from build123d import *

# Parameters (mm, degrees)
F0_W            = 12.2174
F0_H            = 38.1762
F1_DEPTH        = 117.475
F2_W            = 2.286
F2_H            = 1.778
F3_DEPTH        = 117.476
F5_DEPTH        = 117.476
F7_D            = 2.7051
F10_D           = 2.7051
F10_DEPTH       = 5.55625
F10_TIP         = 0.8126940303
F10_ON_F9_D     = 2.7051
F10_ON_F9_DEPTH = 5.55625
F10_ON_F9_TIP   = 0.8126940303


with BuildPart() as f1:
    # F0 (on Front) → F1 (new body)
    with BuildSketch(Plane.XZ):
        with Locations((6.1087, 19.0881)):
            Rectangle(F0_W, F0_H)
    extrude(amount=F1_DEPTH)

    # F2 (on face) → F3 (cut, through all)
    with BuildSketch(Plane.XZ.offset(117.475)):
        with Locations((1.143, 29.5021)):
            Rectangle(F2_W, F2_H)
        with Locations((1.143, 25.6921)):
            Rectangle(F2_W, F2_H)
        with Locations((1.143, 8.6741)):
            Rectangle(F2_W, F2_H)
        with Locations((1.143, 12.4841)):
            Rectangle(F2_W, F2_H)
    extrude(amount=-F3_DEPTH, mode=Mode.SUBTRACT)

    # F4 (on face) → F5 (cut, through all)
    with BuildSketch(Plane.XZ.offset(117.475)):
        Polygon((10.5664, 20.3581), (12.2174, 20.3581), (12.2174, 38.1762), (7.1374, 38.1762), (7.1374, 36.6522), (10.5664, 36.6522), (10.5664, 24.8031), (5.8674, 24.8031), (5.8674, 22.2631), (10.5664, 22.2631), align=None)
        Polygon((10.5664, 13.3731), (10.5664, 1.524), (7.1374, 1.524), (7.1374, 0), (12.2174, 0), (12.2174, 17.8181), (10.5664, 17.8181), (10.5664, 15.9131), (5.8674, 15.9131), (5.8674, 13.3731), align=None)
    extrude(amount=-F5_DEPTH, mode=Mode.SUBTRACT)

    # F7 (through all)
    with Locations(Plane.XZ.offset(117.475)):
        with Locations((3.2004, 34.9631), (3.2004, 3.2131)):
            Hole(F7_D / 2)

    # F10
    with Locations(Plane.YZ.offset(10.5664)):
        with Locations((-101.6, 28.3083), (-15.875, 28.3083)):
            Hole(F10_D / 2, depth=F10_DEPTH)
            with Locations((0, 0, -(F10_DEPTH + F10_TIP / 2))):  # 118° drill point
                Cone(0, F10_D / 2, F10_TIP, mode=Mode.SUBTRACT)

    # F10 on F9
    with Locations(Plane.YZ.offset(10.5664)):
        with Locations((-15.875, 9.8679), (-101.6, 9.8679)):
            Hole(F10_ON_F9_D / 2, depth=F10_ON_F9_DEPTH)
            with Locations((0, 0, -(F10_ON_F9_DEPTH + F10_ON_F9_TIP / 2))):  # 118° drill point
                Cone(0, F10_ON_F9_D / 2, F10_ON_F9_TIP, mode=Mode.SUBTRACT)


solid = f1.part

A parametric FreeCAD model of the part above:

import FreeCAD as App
import Part
import Sketcher
from FreeCAD import Vector
Q = App.Units.Quantity

doc = App.newDocument("Part")
body = doc.addObject("PartDesign::Body", "Body")

# Sketch on XZ plane
sketch1 = doc.addObject("Sketcher::SketchObject", "Sketch")
body.addObject(sketch1)
sketch1.AttachmentSupport = (doc.XZ_Plane, [""])
sketch1.MapMode = "FlatFace"
sketch1.addGeometry([
    Part.LineSegment(Vector(0, 38, 0), Vector(0, 0, 0)),
    Part.LineSegment(Vector(0, 0, 0), Vector(12, 0, 0)),
    Part.LineSegment(Vector(12, 0, 0), Vector(12, 38, 0)),
    Part.LineSegment(Vector(12, 38, 0), Vector(0, 38, 0)),
], False)
sketch1.addConstraint([
    Sketcher.Constraint("Coincident", 0, 2, 1, 1),
    Sketcher.Constraint("Coincident", 1, 2, 2, 1),
    Sketcher.Constraint("Coincident", 2, 2, 3, 1),
    Sketcher.Constraint("Coincident", 3, 2, 0, 1),
    Sketcher.Constraint("Vertical", 0),
    Sketcher.Constraint("Horizontal", 1),
    Sketcher.Constraint("Vertical", 2),
    Sketcher.Constraint("Horizontal", 3),
    Sketcher.Constraint("Coincident", 0, 2, -1, 1),
    Sketcher.Constraint("DistanceX", 1, 1, 1, 2, Q("0.481 in")),
    Sketcher.Constraint("DistanceY", 0, 2, 0, 1, Q("1.503 in")),
])
pad1 = doc.addObject("PartDesign::Pad", "Pad")
body.addObject(pad1)
pad1.Profile = sketch1
pad1.Length = Q("4.625 in")

# Sketch on XZ plane
sketch2 = doc.addObject("Sketcher::SketchObject", "Sketch001")
body.addObject(sketch2)
sketch2.AttachmentSupport = (doc.XZ_Plane, [""])
sketch2.MapMode = "FlatFace"
sketch2.AttachmentOffset = App.Placement(Vector(0, 0, 4.625 * 25.4), App.Rotation())
sketch2.addGeometry([
    Part.LineSegment(Vector(0, 30.4, 0), Vector(0, 28.6, 0)),  # 0
    Part.LineSegment(Vector(0, 28.6, 0), Vector(2.3, 28.6, 0)),  # 1
    Part.LineSegment(Vector(2.3, 28.6, 0), Vector(2.3, 30.4, 0)),  # 2
    Part.LineSegment(Vector(2.3, 30.4, 0), Vector(0, 30.4, 0)),  # 3
    Part.LineSegment(Vector(0, 26.6, 0), Vector(0, 24.8, 0)),  # 4
    Part.LineSegment(Vector(0, 24.8, 0), Vector(2.3, 24.8, 0)),  # 5
    Part.LineSegment(Vector(2.3, 24.8, 0), Vector(2.3, 26.6, 0)),  # 6
    Part.LineSegment(Vector(2.3, 26.6, 0), Vector(0, 26.6, 0)),  # 7
    Part.LineSegment(Vector(0, 9.6, 0), Vector(0, 7.8, 0)),  # 8
    Part.LineSegment(Vector(0, 7.8, 0), Vector(2.3, 7.8, 0)),  # 9
    Part.LineSegment(Vector(2.3, 7.8, 0), Vector(2.3, 9.6, 0)),  # 10
    Part.LineSegment(Vector(2.3, 9.6, 0), Vector(0, 9.6, 0)),  # 11
    Part.LineSegment(Vector(0, 13.4, 0), Vector(0, 11.6, 0)),  # 12
    Part.LineSegment(Vector(0, 11.6, 0), Vector(2.3, 11.6, 0)),  # 13
    Part.LineSegment(Vector(2.3, 11.6, 0), Vector(2.3, 13.4, 0)),  # 14
    Part.LineSegment(Vector(2.3, 13.4, 0), Vector(0, 13.4, 0)),  # 15
], False)
sketch2.addConstraint([
    Sketcher.Constraint("Coincident", 0, 2, 1, 1),
    Sketcher.Constraint("Coincident", 1, 2, 2, 1),
    Sketcher.Constraint("Coincident", 2, 2, 3, 1),
    Sketcher.Constraint("Coincident", 3, 2, 0, 1),
    Sketcher.Constraint("Coincident", 4, 2, 5, 1),
    Sketcher.Constraint("Coincident", 5, 2, 6, 1),
    Sketcher.Constraint("Coincident", 6, 2, 7, 1),
    Sketcher.Constraint("Coincident", 7, 2, 4, 1),
    Sketcher.Constraint("Coincident", 8, 2, 9, 1),
    Sketcher.Constraint("Coincident", 9, 2, 10, 1),
    Sketcher.Constraint("Coincident", 10, 2, 11, 1),
    Sketcher.Constraint("Coincident", 11, 2, 8, 1),
    Sketcher.Constraint("Coincident", 12, 2, 13, 1),
    Sketcher.Constraint("Coincident", 13, 2, 14, 1),
    Sketcher.Constraint("Coincident", 14, 2, 15, 1),
    Sketcher.Constraint("Coincident", 15, 2, 12, 1),
    Sketcher.Constraint("Vertical", 0),
    Sketcher.Constraint("Horizontal", 1),
    Sketcher.Constraint("Vertical", 2),
    Sketcher.Constraint("Horizontal", 3),
    Sketcher.Constraint("Vertical", 4),
    Sketcher.Constraint("Horizontal", 5),
    Sketcher.Constraint("Vertical", 6),
    Sketcher.Constraint("Horizontal", 7),
    Sketcher.Constraint("Vertical", 8),
    Sketcher.Constraint("Horizontal", 9),
    Sketcher.Constraint("Vertical", 10),
    Sketcher.Constraint("Horizontal", 11),
    Sketcher.Constraint("Vertical", 12),
    Sketcher.Constraint("Horizontal", 13),
    Sketcher.Constraint("Vertical", 14),
    Sketcher.Constraint("Horizontal", 15),
    Sketcher.Constraint("PointOnObject", 0, 2, -2),
    Sketcher.Constraint("PointOnObject", 4, 2, -2),
    Sketcher.Constraint("PointOnObject", 8, 2, -2),
    Sketcher.Constraint("PointOnObject", 12, 2, -2),
    Sketcher.Constraint("Vertical", 2, 2, 5, 2),
    Sketcher.Constraint("Vertical", 6, 2, 9, 2),
    Sketcher.Constraint("Vertical", 10, 2, 13, 2),
    Sketcher.Constraint("Equal", 2, 4),
    Sketcher.Constraint("Equal", 6, 8),
    Sketcher.Constraint("Equal", 10, 12),
    Sketcher.Constraint("DistanceX", 1, 1, 1, 2, Q("0.09 in")),
    Sketcher.Constraint("DistanceY", 0, 2, 0, 1, Q("0.07 in")),
    Sketcher.Constraint("DistanceY", 10, 2, 5, 2, Q("0.6 in")),
    Sketcher.Constraint("DistanceY", 4, 2, 0, 2, Q("0.15 in")),
    Sketcher.Constraint("DistanceY", 11, 2, 12, 2, Q("0.08 in")),
    Sketcher.Constraint("DistanceY", -1, 1, 0, 2, Q("1.1265 in")),
])
pocket1 = doc.addObject("PartDesign::Pocket", "Pocket")
body.addObject(pocket1)
pocket1.Profile = sketch2
pocket1.Type = "ThroughAll"

# Sketch on XZ plane
sketch3 = doc.addObject("Sketcher::SketchObject", "Sketch002")
body.addObject(sketch3)
sketch3.AttachmentSupport = (doc.XZ_Plane, [""])
sketch3.MapMode = "FlatFace"
sketch3.AttachmentOffset = App.Placement(Vector(0, 0, 4.625 * 25.4), App.Rotation())
sketch3.addGeometry([
    Part.LineSegment(Vector(10.6, 20.4, 0), Vector(12.2, 20.4, 0)),  # 0
    Part.LineSegment(Vector(12.2, 20.4, 0), Vector(12.2, 38.2, 0)),  # 1
    Part.LineSegment(Vector(12.2, 38.2, 0), Vector(7.1, 38.2, 0)),  # 2
    Part.LineSegment(Vector(7.1, 38.2, 0), Vector(7.1, 36.7, 0)),  # 3
    Part.LineSegment(Vector(7.1, 36.7, 0), Vector(10.6, 36.7, 0)),  # 4
    Part.LineSegment(Vector(10.6, 36.7, 0), Vector(10.6, 24.8, 0)),  # 5
    Part.LineSegment(Vector(10.6, 24.8, 0), Vector(5.9, 24.8, 0)),  # 6
    Part.LineSegment(Vector(5.9, 24.8, 0), Vector(5.9, 22.3, 0)),  # 7
    Part.LineSegment(Vector(5.9, 22.3, 0), Vector(10.6, 22.3, 0)),  # 8
    Part.LineSegment(Vector(10.6, 22.3, 0), Vector(10.6, 20.4, 0)),  # 9
    Part.LineSegment(Vector(10.6, 13.4, 0), Vector(10.6, 1.5, 0)),  # 10
    Part.LineSegment(Vector(10.6, 1.5, 0), Vector(7.1, 1.5, 0)),  # 11
    Part.LineSegment(Vector(7.1, 1.5, 0), Vector(7.1, 0, 0)),  # 12
    Part.LineSegment(Vector(7.1, 0, 0), Vector(12.2, 0, 0)),  # 13
    Part.LineSegment(Vector(12.2, 0, 0), Vector(12.2, 17.8, 0)),  # 14
    Part.LineSegment(Vector(12.2, 17.8, 0), Vector(10.6, 17.8, 0)),  # 15
    Part.LineSegment(Vector(10.6, 17.8, 0), Vector(10.6, 15.9, 0)),  # 16
    Part.LineSegment(Vector(10.6, 15.9, 0), Vector(5.9, 15.9, 0)),  # 17
    Part.LineSegment(Vector(5.9, 15.9, 0), Vector(5.9, 13.4, 0)),  # 18
    Part.LineSegment(Vector(5.9, 13.4, 0), Vector(10.6, 13.4, 0)),  # 19
], False)
sketch3.addConstraint([
    Sketcher.Constraint("Coincident", 0, 2, 1, 1),
    Sketcher.Constraint("Coincident", 1, 2, 2, 1),
    Sketcher.Constraint("Coincident", 2, 2, 3, 1),
    Sketcher.Constraint("Coincident", 3, 2, 4, 1),
    Sketcher.Constraint("Coincident", 4, 2, 5, 1),
    Sketcher.Constraint("Coincident", 5, 2, 6, 1),
    Sketcher.Constraint("Coincident", 6, 2, 7, 1),
    Sketcher.Constraint("Coincident", 7, 2, 8, 1),
    Sketcher.Constraint("Coincident", 8, 2, 9, 1),
    Sketcher.Constraint("Coincident", 9, 2, 0, 1),
    Sketcher.Constraint("Coincident", 10, 2, 11, 1),
    Sketcher.Constraint("Coincident", 11, 2, 12, 1),
    Sketcher.Constraint("Coincident", 12, 2, 13, 1),
    Sketcher.Constraint("Coincident", 13, 2, 14, 1),
    Sketcher.Constraint("Coincident", 14, 2, 15, 1),
    Sketcher.Constraint("Coincident", 15, 2, 16, 1),
    Sketcher.Constraint("Coincident", 16, 2, 17, 1),
    Sketcher.Constraint("Coincident", 17, 2, 18, 1),
    Sketcher.Constraint("Coincident", 18, 2, 19, 1),
    Sketcher.Constraint("Coincident", 19, 2, 10, 1),
    Sketcher.Constraint("Horizontal", 0),
    Sketcher.Constraint("Vertical", 1),
    Sketcher.Constraint("Horizontal", 2),
    Sketcher.Constraint("Vertical", 3),
    Sketcher.Constraint("Horizontal", 4),
    Sketcher.Constraint("Vertical", 5),
    Sketcher.Constraint("Horizontal", 6),
    Sketcher.Constraint("Vertical", 7),
    Sketcher.Constraint("Horizontal", 8),
    Sketcher.Constraint("Vertical", 9),
    Sketcher.Constraint("Vertical", 10),
    Sketcher.Constraint("Horizontal", 11),
    Sketcher.Constraint("Vertical", 12),
    Sketcher.Constraint("Horizontal", 13),
    Sketcher.Constraint("Vertical", 14),
    Sketcher.Constraint("Horizontal", 15),
    Sketcher.Constraint("Vertical", 16),
    Sketcher.Constraint("Horizontal", 17),
    Sketcher.Constraint("Vertical", 18),
    Sketcher.Constraint("Horizontal", 19),
    Sketcher.Constraint("PointOnObject", 12, 2, -1),
    Sketcher.Constraint("Vertical", 5, 2, 8, 2),
    Sketcher.Constraint("Vertical", 9, 2, 10, 2),
    Sketcher.Constraint("Vertical", 3, 2, 11, 2),
    Sketcher.Constraint("Vertical", 1, 2, 13, 2),
    Sketcher.Constraint("Vertical", 10, 2, 15, 2),
    Sketcher.Constraint("Vertical", 7, 2, 17, 2),
    Sketcher.Constraint("Equal", 5, 10),
    Sketcher.Constraint("Equal", 3, 12),
    Sketcher.Constraint("Equal", 1, 14),
    Sketcher.Constraint("Equal", 9, 16),
    Sketcher.Constraint("DistanceX", 2, 2, 2, 1, Q("0.2 in")),
    Sketcher.Constraint("DistanceY", 7, 2, 7, 1, Q("0.1 in")),
    Sketcher.Constraint("DistanceY", 3, 2, 3, 1, Q("0.06 in")),
    Sketcher.Constraint("DistanceY", 14, 2, 0, 2, Q("0.1 in")),
    Sketcher.Constraint("DistanceX", 0, 1, 0, 2, Q("0.065 in")),
    Sketcher.Constraint("DistanceX", 6, 2, 6, 1, Q("0.185 in")),
    Sketcher.Constraint("DistanceY", 9, 2, 9, 1, Q("0.075 in")),
    Sketcher.Constraint("DistanceY", 1, 1, 1, 2, Q("0.7015 in")),
    Sketcher.Constraint("DistanceX", -1, 1, 0, 2, Q("0.481 in")),
])
pocket2 = doc.addObject("PartDesign::Pocket", "Pocket001")
body.addObject(pocket2)
pocket2.Profile = sketch3
pocket2.Type = "ThroughAll"

# Sketch on XZ plane
sketch4 = doc.addObject("Sketcher::SketchObject", "Sketch003")
body.addObject(sketch4)
sketch4.AttachmentSupport = (doc.XZ_Plane, [""])
sketch4.MapMode = "FlatFace"
sketch4.AttachmentOffset = App.Placement(Vector(0, 0, 4.625 * 25.4), App.Rotation())
sketch4.addGeometry([
    Part.Circle(Vector(3.2, 35, 0), Vector(0, 0, 1), 1.4),
    Part.Circle(Vector(3.2, 3.2, 0), Vector(0, 0, 1), 1.4),
], False)
sketch4.addConstraint([
    Sketcher.Constraint("Equal", 0, 1),
    Sketcher.Constraint("Vertical", 0, 3, 1, 3),
    Sketcher.Constraint("Diameter", 0, Q("0.1065 in")),
    Sketcher.Constraint("DistanceY", 1, 3, 0, 3, Q("1.25 in")),
    Sketcher.Constraint("DistanceX", -1, 1, 0, 3, Q("0.126 in")),
    Sketcher.Constraint("DistanceY", -1, 1, 0, 3, Q("1.3765 in")),
])
doc.recompute()
hole = doc.addObject("PartDesign::Hole", "Hole")
body.addObject(hole)
hole.Profile = sketch4
hole.ThreadType = "None"
hole.Diameter = Q("0.1065 in")
hole.DepthType = "ThroughAll"

# Sketch on YZ plane
sketch5 = doc.addObject("Sketcher::SketchObject", "Sketch004")
body.addObject(sketch5)
sketch5.AttachmentSupport = (doc.YZ_Plane, [""])
sketch5.MapMode = "FlatFace"
sketch5.AttachmentOffset = App.Placement(Vector(0, 0, 0.416 * 25.4), App.Rotation())
sketch5.addGeometry([
    Part.Circle(Vector(-101.6, 28.3, 0), Vector(0, 0, 1), 1.4),
    Part.Circle(Vector(-15.9, 28.3, 0), Vector(0, 0, 1), 1.4),
], False)
sketch5.addConstraint([
    Sketcher.Constraint("Equal", 0, 1),
    Sketcher.Constraint("Horizontal", 0, 3, 1, 3),
    Sketcher.Constraint("DistanceX", 0, 3, -1, 1, Q("4 in")),
    Sketcher.Constraint("Diameter", 0, Q("0.1065 in")),
    Sketcher.Constraint("DistanceX", 1, 3, -1, 1, Q("0.625 in")),
    Sketcher.Constraint("DistanceY", -1, 1, 0, 3, Q("1.1145 in")),
])
doc.recompute()
hole2 = doc.addObject("PartDesign::Hole", "Hole001")
body.addObject(hole2)
hole2.Profile = sketch5
hole2.ThreadType = "None"
hole2.Diameter = Q("0.1065 in")
hole2.DepthType = "Dimension"
hole2.Depth = Q("0.21875 in")
hole2.DrillPoint = "Angled"
hole2.DrillPointAngle = 118

# Sketch on YZ plane
sketch6 = doc.addObject("Sketcher::SketchObject", "Sketch005")
body.addObject(sketch6)
sketch6.AttachmentSupport = (doc.YZ_Plane, [""])
sketch6.MapMode = "FlatFace"
sketch6.AttachmentOffset = App.Placement(Vector(0, 0, 0.416 * 25.4), App.Rotation())
sketch6.addGeometry([
    Part.Circle(Vector(-15.9, 9.9, 0), Vector(0, 0, 1), 1.4),
    Part.Circle(Vector(-101.6, 9.9, 0), Vector(0, 0, 1), 1.4),
], False)
sketch6.addConstraint([
    Sketcher.Constraint("Equal", 0, 1),
    Sketcher.Constraint("Horizontal", 0, 3, 1, 3),
    Sketcher.Constraint("DistanceX", 1, 3, -1, 1, Q("4 in")),
    Sketcher.Constraint("Diameter", 0, Q("0.1065 in")),
    Sketcher.Constraint("DistanceX", 0, 3, -1, 1, Q("0.625 in")),
    Sketcher.Constraint("DistanceY", -1, 1, 0, 3, Q("0.3885 in")),
])
doc.recompute()
hole3 = doc.addObject("PartDesign::Hole", "Hole002")
body.addObject(hole3)
hole3.Profile = sketch6
hole3.ThreadType = "None"
hole3.Diameter = Q("0.1065 in")
hole3.DepthType = "Dimension"
hole3.Depth = Q("0.21875 in")
hole3.DrillPoint = "Angled"
hole3.DrillPointAngle = 118

doc.recompute()
